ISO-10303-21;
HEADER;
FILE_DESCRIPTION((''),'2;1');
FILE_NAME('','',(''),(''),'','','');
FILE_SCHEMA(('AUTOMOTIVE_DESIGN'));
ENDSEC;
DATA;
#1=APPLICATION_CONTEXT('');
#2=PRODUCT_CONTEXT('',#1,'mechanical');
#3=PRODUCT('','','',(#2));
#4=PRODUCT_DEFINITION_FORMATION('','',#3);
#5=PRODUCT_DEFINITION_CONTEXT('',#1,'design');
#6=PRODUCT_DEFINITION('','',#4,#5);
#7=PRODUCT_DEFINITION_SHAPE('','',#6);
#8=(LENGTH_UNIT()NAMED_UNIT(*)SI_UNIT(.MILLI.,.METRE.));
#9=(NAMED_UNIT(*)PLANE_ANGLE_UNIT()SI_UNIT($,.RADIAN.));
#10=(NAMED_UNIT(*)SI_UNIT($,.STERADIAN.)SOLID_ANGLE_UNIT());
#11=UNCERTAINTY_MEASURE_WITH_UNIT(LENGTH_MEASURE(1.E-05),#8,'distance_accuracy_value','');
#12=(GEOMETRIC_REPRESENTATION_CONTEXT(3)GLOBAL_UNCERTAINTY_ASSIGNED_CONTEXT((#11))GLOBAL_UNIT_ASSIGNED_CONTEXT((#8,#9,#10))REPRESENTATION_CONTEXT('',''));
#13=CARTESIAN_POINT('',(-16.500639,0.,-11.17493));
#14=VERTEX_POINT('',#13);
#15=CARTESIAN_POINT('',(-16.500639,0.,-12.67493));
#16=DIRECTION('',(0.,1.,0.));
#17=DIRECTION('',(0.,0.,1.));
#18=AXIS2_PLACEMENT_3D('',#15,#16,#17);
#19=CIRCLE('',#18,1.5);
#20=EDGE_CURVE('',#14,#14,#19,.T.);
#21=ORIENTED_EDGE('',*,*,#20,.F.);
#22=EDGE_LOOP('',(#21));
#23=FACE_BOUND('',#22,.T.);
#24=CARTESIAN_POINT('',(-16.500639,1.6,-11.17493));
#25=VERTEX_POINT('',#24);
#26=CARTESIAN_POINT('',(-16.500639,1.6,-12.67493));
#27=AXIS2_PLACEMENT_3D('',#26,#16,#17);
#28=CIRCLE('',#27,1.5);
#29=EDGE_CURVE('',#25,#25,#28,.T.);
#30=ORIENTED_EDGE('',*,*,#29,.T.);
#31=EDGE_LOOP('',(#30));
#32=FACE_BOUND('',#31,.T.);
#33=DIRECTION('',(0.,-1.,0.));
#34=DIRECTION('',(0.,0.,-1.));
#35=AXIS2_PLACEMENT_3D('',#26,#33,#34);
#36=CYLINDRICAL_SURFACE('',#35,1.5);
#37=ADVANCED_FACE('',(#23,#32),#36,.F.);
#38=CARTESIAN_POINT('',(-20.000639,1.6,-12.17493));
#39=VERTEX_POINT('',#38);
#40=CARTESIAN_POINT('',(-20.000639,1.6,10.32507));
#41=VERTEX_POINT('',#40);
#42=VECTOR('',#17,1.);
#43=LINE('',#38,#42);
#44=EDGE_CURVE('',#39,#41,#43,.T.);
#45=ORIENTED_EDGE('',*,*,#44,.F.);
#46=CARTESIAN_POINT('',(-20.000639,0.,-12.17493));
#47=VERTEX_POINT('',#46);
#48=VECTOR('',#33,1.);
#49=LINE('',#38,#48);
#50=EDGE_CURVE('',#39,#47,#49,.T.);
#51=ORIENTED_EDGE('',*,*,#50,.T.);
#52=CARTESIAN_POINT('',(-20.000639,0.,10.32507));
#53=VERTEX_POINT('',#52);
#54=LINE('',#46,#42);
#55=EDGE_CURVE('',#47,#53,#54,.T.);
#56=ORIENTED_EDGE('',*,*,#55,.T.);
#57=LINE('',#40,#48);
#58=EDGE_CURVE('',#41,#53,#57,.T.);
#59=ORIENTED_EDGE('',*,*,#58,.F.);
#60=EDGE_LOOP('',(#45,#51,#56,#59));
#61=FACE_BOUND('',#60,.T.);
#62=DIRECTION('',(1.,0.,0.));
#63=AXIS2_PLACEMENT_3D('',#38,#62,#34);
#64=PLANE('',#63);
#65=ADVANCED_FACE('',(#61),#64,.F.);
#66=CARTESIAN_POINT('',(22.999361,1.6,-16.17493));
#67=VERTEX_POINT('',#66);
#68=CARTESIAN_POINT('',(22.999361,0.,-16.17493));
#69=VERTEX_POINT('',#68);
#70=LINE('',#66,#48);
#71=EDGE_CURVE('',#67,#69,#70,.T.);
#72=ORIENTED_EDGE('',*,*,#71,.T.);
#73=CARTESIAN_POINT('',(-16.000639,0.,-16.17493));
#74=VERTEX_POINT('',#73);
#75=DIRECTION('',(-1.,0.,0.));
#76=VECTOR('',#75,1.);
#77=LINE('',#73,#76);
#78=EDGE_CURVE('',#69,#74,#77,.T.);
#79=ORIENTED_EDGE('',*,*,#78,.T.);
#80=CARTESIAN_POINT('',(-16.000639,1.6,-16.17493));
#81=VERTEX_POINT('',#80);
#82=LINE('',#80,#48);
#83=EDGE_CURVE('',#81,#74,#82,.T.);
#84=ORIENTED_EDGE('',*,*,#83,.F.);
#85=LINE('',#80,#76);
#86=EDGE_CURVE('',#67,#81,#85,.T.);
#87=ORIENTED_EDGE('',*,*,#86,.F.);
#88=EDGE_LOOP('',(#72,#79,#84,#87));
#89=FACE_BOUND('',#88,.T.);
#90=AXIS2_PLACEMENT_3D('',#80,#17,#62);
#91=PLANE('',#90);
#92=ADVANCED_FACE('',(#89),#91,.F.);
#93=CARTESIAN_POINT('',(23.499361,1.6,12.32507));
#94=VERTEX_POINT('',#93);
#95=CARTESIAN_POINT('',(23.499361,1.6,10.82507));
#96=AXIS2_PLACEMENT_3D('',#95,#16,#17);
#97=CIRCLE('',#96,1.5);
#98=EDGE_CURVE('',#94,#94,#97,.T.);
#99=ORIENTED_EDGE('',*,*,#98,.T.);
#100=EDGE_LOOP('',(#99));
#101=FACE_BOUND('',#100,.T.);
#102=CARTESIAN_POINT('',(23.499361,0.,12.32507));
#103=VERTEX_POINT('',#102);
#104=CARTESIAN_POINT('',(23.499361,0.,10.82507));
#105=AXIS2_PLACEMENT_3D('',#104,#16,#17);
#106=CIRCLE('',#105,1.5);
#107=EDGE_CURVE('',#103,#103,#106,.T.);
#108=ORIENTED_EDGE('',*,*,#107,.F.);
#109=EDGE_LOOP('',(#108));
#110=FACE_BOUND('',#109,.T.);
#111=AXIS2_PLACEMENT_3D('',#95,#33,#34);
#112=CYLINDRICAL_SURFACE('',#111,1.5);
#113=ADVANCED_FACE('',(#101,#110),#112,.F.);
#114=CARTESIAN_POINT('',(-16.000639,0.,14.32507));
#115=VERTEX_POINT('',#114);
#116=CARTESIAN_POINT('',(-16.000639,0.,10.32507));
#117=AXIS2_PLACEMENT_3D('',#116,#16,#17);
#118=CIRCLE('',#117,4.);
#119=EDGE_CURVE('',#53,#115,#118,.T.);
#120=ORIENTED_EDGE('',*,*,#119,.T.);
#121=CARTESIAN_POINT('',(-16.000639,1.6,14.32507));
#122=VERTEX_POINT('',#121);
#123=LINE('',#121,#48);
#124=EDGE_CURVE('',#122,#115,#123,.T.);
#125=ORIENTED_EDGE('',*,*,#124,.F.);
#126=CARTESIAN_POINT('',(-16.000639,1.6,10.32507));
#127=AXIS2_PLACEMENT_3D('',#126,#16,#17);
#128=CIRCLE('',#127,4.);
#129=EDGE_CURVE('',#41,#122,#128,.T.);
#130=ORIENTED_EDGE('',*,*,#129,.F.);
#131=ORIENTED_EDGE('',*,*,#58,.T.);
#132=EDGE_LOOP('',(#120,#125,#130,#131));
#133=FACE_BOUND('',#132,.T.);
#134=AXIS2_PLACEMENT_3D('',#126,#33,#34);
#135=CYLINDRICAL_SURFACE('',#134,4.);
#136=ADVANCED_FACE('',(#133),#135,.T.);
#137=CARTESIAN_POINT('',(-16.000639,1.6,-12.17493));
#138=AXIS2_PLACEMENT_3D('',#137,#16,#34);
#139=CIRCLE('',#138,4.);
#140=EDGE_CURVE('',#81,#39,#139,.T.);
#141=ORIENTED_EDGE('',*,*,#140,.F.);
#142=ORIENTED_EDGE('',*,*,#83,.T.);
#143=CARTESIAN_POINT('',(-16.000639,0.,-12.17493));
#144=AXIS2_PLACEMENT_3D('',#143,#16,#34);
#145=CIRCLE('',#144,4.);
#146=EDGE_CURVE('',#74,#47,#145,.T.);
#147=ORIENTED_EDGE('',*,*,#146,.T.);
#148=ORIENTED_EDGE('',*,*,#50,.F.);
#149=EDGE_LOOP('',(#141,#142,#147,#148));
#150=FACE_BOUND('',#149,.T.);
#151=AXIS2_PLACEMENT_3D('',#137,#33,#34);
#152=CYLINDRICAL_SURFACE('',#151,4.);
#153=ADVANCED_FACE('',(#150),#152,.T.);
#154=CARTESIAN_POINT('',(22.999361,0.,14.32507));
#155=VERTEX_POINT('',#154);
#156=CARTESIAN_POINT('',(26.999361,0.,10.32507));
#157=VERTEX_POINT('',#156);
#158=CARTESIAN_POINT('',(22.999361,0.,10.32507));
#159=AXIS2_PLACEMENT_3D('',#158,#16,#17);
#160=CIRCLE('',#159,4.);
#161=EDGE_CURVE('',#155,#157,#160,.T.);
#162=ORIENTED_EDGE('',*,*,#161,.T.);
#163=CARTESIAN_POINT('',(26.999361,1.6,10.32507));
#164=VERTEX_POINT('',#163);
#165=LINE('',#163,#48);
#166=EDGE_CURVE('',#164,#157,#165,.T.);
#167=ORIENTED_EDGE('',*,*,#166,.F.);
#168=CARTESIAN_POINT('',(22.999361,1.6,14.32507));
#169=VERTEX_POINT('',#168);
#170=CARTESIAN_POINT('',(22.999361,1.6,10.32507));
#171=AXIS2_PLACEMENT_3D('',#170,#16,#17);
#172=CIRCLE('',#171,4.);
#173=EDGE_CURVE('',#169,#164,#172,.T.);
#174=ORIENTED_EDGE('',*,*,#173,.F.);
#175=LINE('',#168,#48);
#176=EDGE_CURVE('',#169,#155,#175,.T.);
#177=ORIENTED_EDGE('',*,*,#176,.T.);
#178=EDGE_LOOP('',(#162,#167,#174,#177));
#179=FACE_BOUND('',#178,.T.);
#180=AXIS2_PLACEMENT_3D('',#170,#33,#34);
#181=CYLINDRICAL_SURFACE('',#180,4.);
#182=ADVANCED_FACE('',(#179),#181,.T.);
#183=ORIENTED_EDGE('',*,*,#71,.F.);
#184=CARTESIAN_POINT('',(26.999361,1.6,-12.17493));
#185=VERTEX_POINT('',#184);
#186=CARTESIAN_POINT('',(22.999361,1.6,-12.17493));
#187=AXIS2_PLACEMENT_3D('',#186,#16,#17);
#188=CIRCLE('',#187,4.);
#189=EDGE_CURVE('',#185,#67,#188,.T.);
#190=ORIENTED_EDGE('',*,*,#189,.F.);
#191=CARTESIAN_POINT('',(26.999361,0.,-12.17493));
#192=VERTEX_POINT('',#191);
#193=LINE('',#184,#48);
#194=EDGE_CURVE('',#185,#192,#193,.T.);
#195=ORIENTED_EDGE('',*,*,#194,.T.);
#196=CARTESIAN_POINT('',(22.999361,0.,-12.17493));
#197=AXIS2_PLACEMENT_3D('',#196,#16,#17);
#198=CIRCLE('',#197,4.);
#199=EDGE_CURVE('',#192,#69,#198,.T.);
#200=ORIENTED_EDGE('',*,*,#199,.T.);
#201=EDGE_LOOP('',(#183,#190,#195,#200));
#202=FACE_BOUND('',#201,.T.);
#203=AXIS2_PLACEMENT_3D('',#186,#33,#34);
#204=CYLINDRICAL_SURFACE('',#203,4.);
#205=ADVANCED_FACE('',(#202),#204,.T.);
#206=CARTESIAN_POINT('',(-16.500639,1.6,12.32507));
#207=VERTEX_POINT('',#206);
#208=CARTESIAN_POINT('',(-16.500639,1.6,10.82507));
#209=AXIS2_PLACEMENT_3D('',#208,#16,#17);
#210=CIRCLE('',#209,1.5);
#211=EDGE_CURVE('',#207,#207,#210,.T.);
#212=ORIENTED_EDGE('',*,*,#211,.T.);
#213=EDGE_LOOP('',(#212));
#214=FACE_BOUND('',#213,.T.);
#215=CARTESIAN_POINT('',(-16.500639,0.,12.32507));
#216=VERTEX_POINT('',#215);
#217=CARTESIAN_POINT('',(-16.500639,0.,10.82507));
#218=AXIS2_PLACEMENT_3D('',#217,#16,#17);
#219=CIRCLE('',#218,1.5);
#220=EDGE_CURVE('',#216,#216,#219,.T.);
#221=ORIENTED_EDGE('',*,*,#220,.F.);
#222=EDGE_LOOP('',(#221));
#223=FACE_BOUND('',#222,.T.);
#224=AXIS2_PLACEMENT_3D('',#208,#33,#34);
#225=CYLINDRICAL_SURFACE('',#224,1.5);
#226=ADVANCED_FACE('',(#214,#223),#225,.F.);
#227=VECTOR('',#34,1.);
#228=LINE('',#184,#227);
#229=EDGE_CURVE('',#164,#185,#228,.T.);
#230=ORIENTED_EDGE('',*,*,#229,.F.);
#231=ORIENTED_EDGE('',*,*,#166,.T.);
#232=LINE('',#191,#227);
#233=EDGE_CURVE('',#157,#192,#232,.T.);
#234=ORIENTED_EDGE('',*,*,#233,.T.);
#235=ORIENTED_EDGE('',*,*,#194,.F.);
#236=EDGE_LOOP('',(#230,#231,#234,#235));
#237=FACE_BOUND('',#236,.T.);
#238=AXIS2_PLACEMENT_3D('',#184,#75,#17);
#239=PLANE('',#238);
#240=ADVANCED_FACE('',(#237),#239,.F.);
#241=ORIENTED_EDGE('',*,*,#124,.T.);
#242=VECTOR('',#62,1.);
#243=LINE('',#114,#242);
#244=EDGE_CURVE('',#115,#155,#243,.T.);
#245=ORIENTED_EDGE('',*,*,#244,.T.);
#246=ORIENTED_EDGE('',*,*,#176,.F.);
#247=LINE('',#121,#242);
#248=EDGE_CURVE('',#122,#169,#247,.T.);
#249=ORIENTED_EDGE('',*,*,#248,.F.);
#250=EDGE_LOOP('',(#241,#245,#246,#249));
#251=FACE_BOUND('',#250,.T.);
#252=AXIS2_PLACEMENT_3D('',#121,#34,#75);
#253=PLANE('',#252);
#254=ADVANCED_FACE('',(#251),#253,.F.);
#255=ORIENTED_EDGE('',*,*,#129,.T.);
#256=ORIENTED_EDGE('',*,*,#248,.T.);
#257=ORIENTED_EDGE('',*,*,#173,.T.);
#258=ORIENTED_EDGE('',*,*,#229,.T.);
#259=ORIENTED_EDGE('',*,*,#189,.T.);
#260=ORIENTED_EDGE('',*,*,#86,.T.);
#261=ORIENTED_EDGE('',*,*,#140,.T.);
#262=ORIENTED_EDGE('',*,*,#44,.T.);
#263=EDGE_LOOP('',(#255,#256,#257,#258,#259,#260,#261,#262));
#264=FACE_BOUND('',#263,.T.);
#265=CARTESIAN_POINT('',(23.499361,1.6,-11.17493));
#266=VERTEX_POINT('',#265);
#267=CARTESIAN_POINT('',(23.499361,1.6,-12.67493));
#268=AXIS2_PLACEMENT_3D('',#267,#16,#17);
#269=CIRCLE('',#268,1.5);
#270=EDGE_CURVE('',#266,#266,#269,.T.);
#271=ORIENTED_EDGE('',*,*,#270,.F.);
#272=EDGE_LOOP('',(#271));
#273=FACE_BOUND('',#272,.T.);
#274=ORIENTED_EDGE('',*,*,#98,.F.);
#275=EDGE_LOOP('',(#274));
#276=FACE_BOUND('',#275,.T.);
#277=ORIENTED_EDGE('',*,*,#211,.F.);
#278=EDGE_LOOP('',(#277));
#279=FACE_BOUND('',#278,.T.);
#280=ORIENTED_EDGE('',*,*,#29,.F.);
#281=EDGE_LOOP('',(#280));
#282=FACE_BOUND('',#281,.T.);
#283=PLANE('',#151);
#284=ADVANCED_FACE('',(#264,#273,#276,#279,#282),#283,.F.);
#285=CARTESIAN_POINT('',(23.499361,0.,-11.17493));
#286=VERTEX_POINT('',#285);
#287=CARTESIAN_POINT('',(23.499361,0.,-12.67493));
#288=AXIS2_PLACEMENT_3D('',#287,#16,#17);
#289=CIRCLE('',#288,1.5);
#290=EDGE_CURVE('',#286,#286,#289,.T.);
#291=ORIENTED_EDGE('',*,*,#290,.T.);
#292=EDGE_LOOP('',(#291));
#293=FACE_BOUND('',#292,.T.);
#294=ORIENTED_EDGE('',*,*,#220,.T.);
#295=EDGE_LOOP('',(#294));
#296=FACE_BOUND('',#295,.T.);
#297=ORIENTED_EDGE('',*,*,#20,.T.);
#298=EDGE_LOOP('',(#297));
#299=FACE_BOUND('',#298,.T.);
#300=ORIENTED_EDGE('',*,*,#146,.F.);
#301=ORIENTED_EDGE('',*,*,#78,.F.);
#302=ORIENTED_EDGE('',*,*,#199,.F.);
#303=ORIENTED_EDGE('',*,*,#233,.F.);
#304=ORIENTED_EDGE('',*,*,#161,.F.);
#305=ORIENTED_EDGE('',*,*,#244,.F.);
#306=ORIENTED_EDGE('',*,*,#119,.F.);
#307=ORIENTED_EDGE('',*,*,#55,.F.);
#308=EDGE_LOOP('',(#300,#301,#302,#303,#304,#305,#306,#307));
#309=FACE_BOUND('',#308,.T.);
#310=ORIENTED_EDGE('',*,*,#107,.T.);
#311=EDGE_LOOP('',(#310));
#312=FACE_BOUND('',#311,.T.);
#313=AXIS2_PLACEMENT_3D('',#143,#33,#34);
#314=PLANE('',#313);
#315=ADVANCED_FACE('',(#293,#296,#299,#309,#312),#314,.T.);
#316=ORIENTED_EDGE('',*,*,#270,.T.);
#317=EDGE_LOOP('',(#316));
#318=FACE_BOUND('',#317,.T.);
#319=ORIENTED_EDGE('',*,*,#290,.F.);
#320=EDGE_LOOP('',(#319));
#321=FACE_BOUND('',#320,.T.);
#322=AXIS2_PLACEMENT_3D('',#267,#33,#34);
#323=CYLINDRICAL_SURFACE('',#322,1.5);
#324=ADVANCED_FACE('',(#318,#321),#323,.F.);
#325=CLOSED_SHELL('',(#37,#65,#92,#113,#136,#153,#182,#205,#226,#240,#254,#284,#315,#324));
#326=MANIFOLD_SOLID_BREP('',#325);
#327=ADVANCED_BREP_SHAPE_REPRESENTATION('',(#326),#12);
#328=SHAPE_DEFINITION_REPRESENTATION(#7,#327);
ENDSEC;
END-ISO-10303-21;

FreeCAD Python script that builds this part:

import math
import FreeCAD as App
import Part
import Sketcher

V = App.Vector

doc = App.newDocument("Part")
params = doc.addObject("Spreadsheet::Sheet", "Params")
for row, (alias, value) in enumerate([
    ("sketch1_diameter", "3 mm"),
    ("sketch1_radius", "4 mm"),
    ("sketch1_width", "39 mm"),
    ("sketch1_height", "22.5 mm"),
    ("pad1_length", "1.6 mm"),
], start=1):
    params.set(f"A{row}", alias)
    params.set(f"B{row}", "=" + value)
    params.setAlias(f"B{row}", alias)

body = doc.addObject("PartDesign::Body", "Body")

# Sketch on XZ plane
sketch1 = body.newObject("Sketcher::SketchObject", "Sketch")
sketch1.AttachmentSupport = (doc.getObject("XZ_Plane"), [""])
sketch1.MapMode = "FlatFace"
sketch1.addGeometry([
    Part.LineSegment(V(23, -16.2, 0), V(-16, -16.2, 0)),  # 0
    Part.ArcOfCircle(Part.Circle(V(-16, -12.2, 0), V(0, 0, 1), 4), math.radians(-180), math.radians(-90)),  # 1
    Part.LineSegment(V(-20, -12.2, 0), V(-20, 10.3, 0)),  # 2
    Part.ArcOfCircle(Part.Circle(V(-16, 10.3, 0), V(0, 0, 1), 4), math.radians(90), math.radians(180)),  # 3
    Part.LineSegment(V(-16, 14.3, 0), V(23, 14.3, 0)),  # 4
    Part.ArcOfCircle(Part.Circle(V(23, 10.3, 0), V(0, 0, 1), 4), math.radians(0), math.radians(90)),  # 5
    Part.LineSegment(V(27, 10.3, 0), V(27, -12.2, 0)),  # 6
    Part.ArcOfCircle(Part.Circle(V(23, -12.2, 0), V(0, 0, 1), 4), math.radians(-90), math.radians(0)),  # 7
    Part.Circle(V(23.5, 10.8, 0), V(0, 0, 1), 1.5),  # 8
    Part.Circle(V(-16.5, 10.8, 0), V(0, 0, 1), 1.5),  # 9
    Part.Circle(V(23.5, -12.7, 0), V(0, 0, 1), 1.5),  # 10
    Part.Circle(V(-16.5, -12.7, 0), V(0, 0, 1), 1.5),  # 11
], False)
sketch1.addConstraint([
    Sketcher.Constraint("Tangent", 0, 2, 1, 2),
    Sketcher.Constraint("Tangent", 1, 1, 2, 1),
    Sketcher.Constraint("Tangent", 2, 2, 3, 2),
    Sketcher.Constraint("Tangent", 3, 1, 4, 1),
    Sketcher.Constraint("Tangent", 4, 2, 5, 2),
    Sketcher.Constraint("Tangent", 5, 1, 6, 1),
    Sketcher.Constraint("Tangent", 6, 2, 7, 2),
    Sketcher.Constraint("Tangent", 7, 1, 0, 1),
    Sketcher.Constraint("Horizontal", 0),
    Sketcher.Constraint("Vertical", 2),
    Sketcher.Constraint("Horizontal", 4),
    Sketcher.Constraint("Vertical", 6),
    Sketcher.Constraint("Equal", 1, 3),
    Sketcher.Constraint("Equal", 3, 5),
    Sketcher.Constraint("Equal", 5, 7),
    Sketcher.Constraint("Equal", 8, 9),
    Sketcher.Constraint("Equal", 9, 10),
    Sketcher.Constraint("Equal", 10, 11),
    Sketcher.Constraint("Horizontal", 8, 3, 9, 3),
    Sketcher.Constraint("Horizontal", 10, 3, 11, 3),
    Sketcher.Constraint("Vertical", 8, 3, 10, 3),
    Sketcher.Constraint("Vertical", 9, 3, 11, 3),
    Sketcher.Constraint("Diameter", 8, 3.0),
    Sketcher.Constraint("Radius", 1, 4.0),
    Sketcher.Constraint("DistanceX", 0, 2, 0, 1, 39.0),
    Sketcher.Constraint("DistanceY", 2, 1, 2, 2, 22.5),
    Sketcher.Constraint("DistanceY", 7, 3, 8, 3, 23.0),
    Sketcher.Constraint("DistanceX", 9, 3, 8, 3, 40.0),
    Sketcher.Constraint("DistanceY", 10, 3, 5, 3, 23.0),
    Sketcher.Constraint("DistanceX", 5, 3, 8, 3, 0.5),
    Sketcher.Constraint("DistanceX", 1, 3, -1, 1, 16.000639),
    Sketcher.Constraint("DistanceY", 1, 3, -1, 1, 12.17493),
])
sketch1.setExpression("Constraints[22]", "Params.sketch1_diameter")
sketch1.setExpression("Constraints[23]", "Params.sketch1_radius")
sketch1.setExpression("Constraints[24]", "Params.sketch1_width")
sketch1.setExpression("Constraints[25]", "Params.sketch1_height")
pad1 = body.newObject("PartDesign::Pad", "Pad")
pad1.Profile = sketch1
pad1.setExpression("Length", "Params.pad1_length")
pad1.Reversed = True

doc.recompute()
